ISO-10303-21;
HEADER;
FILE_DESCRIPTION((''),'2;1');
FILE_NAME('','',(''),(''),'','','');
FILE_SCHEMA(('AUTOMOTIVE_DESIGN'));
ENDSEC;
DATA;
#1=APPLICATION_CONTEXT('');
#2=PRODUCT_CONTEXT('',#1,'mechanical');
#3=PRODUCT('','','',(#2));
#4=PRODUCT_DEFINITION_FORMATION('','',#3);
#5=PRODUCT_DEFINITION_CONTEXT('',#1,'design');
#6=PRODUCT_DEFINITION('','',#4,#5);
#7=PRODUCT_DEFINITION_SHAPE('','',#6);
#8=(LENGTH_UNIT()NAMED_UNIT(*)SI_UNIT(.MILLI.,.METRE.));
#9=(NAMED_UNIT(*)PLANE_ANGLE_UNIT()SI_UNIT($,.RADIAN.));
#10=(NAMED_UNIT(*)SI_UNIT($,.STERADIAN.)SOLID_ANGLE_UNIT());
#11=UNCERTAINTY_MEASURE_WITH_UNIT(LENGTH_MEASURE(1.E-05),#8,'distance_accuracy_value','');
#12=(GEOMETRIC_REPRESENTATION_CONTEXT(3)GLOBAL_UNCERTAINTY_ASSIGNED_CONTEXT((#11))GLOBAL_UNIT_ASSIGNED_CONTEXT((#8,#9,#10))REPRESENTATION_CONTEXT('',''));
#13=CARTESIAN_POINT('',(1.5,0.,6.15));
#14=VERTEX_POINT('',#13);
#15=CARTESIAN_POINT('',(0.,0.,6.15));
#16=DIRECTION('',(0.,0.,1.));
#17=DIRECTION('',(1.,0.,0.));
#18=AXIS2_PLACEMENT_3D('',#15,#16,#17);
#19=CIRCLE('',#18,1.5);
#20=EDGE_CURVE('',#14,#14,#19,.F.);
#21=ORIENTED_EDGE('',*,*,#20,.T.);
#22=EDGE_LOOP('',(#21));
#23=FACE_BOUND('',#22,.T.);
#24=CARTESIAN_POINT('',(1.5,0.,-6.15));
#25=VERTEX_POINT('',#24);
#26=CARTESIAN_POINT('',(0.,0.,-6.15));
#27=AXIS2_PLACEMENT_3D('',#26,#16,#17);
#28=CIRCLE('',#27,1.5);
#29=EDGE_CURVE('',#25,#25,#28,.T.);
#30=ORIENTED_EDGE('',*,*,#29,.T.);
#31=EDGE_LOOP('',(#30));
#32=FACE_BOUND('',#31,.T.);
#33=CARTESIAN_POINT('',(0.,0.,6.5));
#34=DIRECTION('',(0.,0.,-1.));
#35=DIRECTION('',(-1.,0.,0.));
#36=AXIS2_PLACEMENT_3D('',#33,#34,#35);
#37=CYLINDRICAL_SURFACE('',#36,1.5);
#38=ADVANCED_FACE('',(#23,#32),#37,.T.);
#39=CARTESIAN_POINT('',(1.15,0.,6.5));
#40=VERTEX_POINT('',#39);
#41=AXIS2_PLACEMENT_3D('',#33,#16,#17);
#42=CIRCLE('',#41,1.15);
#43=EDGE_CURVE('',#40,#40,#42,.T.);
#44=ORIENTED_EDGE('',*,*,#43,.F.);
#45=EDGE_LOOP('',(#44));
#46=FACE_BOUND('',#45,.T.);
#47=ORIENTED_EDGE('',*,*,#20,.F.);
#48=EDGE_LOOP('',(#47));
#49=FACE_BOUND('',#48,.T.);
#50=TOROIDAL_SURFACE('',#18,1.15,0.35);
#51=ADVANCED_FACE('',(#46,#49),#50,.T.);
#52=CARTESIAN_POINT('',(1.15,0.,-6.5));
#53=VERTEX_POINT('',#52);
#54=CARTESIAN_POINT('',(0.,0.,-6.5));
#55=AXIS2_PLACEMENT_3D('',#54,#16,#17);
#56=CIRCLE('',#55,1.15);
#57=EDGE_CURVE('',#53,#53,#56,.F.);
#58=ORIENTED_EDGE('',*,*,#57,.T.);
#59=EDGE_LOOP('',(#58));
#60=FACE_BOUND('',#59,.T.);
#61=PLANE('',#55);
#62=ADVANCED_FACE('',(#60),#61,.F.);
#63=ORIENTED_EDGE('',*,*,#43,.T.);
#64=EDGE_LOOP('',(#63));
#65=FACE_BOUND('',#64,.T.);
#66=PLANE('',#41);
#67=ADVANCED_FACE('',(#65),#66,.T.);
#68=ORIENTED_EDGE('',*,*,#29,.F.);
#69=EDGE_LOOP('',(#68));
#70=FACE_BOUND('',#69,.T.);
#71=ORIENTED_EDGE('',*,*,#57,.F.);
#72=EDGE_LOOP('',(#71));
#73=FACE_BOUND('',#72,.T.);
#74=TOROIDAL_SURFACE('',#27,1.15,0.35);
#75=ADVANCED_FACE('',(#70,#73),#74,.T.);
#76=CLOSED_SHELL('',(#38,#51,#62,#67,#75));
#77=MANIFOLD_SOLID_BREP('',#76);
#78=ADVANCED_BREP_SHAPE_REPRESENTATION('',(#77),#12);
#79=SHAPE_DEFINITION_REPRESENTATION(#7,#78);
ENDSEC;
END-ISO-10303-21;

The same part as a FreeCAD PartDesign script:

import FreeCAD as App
import Part
import Sketcher
from FreeCAD import Vector


def edges_at(feature, points):
    """Names of the edges that pass closest to the given points."""
    edges = feature.Shape.Edges
    near = lambda p: min(range(len(edges)), key=lambda i: edges[i].distToShape(Part.Vertex(*p))[0])
    return sorted({f"Edge{near(p) + 1}" for p in points})

doc = App.newDocument("Part")
body = doc.addObject("PartDesign::Body", "Body")

sketch1 = doc.addObject("Sketcher::SketchObject", "Sketch")
body.addObject(sketch1)
sketch1.AttachmentSupport = (doc.XY_Plane, [""])
sketch1.MapMode = "FlatFace"
sketch1.addGeometry(Part.Circle(Vector(0, 0, 0), Vector(0, 0, 1), 1.5), False)
sketch1.addConstraint([
    Sketcher.Constraint("Coincident", 0, 3, -1, 1),
    Sketcher.Constraint("Diameter", 0, 3.0),
])
pad1 = doc.addObject("PartDesign::Pad", "Pad")
body.addObject(pad1)
pad1.Profile = sketch1
pad1.Length = 13
pad1.Midplane = True
doc.recompute()

fillet = doc.addObject("PartDesign::Fillet", "Fillet")
body.addObject(fillet)
fillet.Base = (pad1, edges_at(pad1, [(-1.5, 0, -6.5), (-1.5, 0, 6.5)]))
fillet.Radius = 0.35

doc.recompute()
